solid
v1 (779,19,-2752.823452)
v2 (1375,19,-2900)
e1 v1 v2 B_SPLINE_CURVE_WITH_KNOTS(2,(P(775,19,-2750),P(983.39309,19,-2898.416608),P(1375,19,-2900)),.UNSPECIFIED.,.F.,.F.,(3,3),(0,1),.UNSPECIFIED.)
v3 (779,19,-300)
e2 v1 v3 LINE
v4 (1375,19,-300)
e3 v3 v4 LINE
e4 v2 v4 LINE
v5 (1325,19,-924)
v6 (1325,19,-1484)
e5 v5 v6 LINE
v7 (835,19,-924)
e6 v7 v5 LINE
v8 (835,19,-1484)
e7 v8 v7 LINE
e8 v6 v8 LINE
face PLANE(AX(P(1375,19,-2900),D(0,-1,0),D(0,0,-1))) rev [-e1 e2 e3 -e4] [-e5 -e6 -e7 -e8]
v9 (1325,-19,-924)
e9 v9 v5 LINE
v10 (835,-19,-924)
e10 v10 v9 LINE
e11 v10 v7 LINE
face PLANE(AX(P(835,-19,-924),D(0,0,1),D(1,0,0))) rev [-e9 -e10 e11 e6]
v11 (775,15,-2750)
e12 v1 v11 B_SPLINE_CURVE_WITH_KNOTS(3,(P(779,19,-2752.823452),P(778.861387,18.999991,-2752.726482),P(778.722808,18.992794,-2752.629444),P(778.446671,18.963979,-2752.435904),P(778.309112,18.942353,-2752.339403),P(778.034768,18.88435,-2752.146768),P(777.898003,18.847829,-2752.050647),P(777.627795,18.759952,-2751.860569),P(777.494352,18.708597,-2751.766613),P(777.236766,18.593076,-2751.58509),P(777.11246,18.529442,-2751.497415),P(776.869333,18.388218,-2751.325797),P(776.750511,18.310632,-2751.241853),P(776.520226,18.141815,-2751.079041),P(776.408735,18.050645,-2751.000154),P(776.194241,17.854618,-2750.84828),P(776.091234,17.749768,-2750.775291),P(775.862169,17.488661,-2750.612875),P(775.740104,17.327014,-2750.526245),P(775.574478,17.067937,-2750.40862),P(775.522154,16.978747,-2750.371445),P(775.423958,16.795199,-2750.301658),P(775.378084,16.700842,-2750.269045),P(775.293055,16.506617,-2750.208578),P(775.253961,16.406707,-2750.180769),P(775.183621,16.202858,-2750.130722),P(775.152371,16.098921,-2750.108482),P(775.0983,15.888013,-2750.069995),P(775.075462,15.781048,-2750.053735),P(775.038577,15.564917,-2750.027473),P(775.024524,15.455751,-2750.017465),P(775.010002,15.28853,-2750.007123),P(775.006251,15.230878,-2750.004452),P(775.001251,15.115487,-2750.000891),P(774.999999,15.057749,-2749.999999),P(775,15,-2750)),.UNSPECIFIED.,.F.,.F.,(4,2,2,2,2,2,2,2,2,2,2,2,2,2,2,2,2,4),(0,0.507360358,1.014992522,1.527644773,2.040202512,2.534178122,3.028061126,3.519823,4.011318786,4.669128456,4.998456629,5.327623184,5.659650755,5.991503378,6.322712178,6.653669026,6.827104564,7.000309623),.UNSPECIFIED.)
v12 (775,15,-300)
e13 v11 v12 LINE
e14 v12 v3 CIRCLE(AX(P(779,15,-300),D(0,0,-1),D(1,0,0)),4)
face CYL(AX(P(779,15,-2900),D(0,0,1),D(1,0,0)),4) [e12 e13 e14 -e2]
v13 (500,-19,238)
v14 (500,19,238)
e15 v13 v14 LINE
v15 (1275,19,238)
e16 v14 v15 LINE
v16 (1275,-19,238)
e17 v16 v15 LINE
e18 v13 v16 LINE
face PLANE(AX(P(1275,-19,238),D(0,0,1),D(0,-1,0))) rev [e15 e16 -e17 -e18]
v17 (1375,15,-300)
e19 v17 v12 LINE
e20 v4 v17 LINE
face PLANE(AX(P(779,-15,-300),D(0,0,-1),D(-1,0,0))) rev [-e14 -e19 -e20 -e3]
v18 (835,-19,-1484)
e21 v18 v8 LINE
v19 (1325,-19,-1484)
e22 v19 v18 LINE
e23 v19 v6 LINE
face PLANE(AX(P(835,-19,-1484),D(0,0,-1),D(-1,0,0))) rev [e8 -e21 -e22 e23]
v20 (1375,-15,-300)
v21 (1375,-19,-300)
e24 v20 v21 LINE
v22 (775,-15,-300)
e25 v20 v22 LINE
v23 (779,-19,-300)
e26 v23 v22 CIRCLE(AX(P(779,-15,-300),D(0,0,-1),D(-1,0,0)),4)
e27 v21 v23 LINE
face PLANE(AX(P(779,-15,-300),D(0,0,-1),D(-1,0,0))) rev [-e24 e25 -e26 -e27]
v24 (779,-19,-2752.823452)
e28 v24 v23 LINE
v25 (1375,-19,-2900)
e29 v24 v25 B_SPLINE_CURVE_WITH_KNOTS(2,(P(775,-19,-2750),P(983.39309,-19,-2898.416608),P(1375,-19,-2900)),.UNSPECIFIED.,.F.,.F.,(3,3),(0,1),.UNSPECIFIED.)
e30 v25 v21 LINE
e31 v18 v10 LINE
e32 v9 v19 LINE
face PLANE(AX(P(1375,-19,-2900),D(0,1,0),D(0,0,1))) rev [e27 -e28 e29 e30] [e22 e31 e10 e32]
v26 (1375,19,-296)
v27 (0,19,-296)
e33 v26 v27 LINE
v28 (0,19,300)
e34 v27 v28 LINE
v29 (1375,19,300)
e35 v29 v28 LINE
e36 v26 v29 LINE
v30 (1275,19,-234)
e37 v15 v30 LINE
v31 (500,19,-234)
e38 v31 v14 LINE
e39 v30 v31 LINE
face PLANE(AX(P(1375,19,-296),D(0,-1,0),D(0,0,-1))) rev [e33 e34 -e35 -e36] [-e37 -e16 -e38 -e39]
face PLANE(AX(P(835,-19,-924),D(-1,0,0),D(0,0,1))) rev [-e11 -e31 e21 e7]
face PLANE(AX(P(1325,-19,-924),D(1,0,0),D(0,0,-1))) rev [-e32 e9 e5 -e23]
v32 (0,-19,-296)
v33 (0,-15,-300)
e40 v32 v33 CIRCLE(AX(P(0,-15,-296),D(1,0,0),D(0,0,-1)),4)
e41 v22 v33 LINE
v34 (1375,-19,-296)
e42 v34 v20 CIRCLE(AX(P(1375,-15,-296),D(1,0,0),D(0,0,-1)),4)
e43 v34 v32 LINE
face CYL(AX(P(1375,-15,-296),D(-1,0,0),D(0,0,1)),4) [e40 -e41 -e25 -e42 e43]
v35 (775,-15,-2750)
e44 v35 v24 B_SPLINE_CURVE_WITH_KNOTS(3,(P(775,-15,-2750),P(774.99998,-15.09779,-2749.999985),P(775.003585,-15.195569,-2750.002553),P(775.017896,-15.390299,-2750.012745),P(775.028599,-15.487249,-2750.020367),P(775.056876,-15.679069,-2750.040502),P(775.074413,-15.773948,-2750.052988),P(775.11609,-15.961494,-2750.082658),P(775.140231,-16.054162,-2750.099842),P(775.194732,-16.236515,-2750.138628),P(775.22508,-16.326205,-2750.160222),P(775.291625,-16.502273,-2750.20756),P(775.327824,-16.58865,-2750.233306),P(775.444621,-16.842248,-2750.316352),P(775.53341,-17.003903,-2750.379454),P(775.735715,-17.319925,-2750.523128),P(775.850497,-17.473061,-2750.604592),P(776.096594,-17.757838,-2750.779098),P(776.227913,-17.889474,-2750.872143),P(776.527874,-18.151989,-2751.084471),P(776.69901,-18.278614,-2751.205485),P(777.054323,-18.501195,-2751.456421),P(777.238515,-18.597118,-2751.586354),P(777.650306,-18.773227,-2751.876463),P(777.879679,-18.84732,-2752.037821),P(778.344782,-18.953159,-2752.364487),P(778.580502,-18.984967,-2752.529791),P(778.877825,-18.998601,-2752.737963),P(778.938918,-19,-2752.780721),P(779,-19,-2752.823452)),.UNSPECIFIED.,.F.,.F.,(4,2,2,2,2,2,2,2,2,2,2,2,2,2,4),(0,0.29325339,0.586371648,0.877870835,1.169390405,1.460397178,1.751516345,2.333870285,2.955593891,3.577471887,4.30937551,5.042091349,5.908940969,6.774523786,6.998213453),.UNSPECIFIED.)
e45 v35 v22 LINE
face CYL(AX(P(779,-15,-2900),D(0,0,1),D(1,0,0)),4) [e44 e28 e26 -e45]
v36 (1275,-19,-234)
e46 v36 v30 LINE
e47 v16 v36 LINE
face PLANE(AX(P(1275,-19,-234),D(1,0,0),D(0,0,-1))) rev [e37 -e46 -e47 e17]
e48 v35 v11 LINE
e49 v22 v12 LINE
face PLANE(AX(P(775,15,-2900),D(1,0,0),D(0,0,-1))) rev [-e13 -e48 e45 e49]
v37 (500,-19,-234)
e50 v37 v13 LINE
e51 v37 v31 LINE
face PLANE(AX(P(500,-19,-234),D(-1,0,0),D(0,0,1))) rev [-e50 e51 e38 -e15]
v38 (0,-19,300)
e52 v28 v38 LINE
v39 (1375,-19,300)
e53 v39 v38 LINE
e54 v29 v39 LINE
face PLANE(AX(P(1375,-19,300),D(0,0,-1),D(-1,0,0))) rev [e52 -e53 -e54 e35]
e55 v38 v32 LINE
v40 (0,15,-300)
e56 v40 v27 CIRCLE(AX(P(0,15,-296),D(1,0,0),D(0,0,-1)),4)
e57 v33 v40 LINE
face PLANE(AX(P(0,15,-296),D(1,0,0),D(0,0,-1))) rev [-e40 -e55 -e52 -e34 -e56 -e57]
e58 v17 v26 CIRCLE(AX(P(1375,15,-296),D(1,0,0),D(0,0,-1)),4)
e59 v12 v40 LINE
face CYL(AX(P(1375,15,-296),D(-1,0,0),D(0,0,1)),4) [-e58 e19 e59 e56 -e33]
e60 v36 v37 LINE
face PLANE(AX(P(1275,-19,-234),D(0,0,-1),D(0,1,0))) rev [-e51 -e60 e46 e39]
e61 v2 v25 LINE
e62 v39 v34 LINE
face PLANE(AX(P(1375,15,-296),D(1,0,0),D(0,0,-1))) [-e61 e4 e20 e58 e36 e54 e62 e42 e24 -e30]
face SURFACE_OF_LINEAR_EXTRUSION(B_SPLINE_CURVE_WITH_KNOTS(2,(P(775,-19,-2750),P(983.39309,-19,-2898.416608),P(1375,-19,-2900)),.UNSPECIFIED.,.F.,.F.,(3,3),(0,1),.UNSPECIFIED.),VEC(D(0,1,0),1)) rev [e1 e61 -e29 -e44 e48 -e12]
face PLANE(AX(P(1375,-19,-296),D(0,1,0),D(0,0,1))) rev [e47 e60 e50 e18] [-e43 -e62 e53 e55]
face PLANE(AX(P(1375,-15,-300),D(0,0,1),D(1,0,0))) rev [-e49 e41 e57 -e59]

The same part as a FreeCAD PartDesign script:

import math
import FreeCAD as App
import Part
import Sketcher
Q = App.Units.Quantity


def add_polygon(sketch, points):
    """Adds a closed chain of lines whose ends are joined by coincident constraints."""
    first, n = sketch.GeometryCount, len(points)
    for a, b in zip(points, points[1:] + points[:1]):
        sketch.addGeometry(Part.LineSegment(App.Vector(*a, 0), App.Vector(*b, 0)), False)
    for i in range(n):
        sketch.addConstraint(Sketcher.Constraint("Coincident", first + i, 2, first + (i + 1) % n, 1))

doc = App.newDocument("Part")
body = doc.addObject("PartDesign::Body", "Body")

sketch1 = doc.addObject("Sketcher::SketchObject", "Sketch")
body.addObject(sketch1)
sketch1.AttachmentSupport = (doc.YZ_Plane, [""])
sketch1.MapMode = "FlatFace"
sketch1.addGeometry([
    Part.LineSegment(App.Vector(-19, 300, 0), App.Vector(-19, -296, 0)),
    Part.ArcOfCircle(Part.Circle(App.Vector(-15, -296, 0), App.Vector(0, 0, 1), 4), math.radians(180), math.radians(270)),
    Part.LineSegment(App.Vector(-15, -300, 0), App.Vector(15, -300, 0)),
    Part.ArcOfCircle(Part.Circle(App.Vector(15, -296, 0), App.Vector(0, 0, 1), 4), math.radians(-90), math.radians(0)),
    Part.LineSegment(App.Vector(19, -296, 0), App.Vector(19, 300, 0)),
    Part.LineSegment(App.Vector(19, 300, 0), App.Vector(-19, 300, 0)),
], False)
sketch1.addConstraint([
    Sketcher.Constraint("Tangent", 0, 2, 1, 1),
    Sketcher.Constraint("Tangent", 1, 2, 2, 1),
    Sketcher.Constraint("Tangent", 2, 2, 3, 1),
    Sketcher.Constraint("Tangent", 3, 2, 4, 1),
    Sketcher.Constraint("Coincident", 4, 2, 5, 1),
    Sketcher.Constraint("Coincident", 5, 2, 0, 1),
    Sketcher.Constraint("Vertical", 0),
    Sketcher.Constraint("Horizontal", 2),
    Sketcher.Constraint("Vertical", 4),
    Sketcher.Constraint("Horizontal", 5),
    Sketcher.Constraint("Equal", 1, 3),
    Sketcher.Constraint("Radius", 1, Q("4 mm")),
    Sketcher.Constraint("DistanceX", 2, 1, 2, 2, Q("30 mm")),
    Sketcher.Constraint("DistanceY", 0, 2, 0, 1, Q("596 mm")),
    Sketcher.Constraint("DistanceX", 1, 3, -1, 1, Q("15 mm")),
    Sketcher.Constraint("DistanceY", 1, 3, -1, 1, Q("296 mm")),
])
pad1 = doc.addObject("PartDesign::Pad", "Pad")
body.addObject(pad1)
pad1.Profile = sketch1
pad1.Length = 1375

sketch2 = doc.addObject("Sketcher::SketchObject", "Sketch001")
body.addObject(sketch2)
sketch2.AttachmentSupport = (doc.XY_Plane, [""])
sketch2.MapMode = "FlatFace"
sketch2.AttachmentOffset = App.Placement(App.Vector(0, 0, -300), App.Rotation())
sketch2.addGeometry([
    Part.LineSegment(App.Vector(779, 19, 0), App.Vector(1375, 19, 0)),
    Part.LineSegment(App.Vector(1375, 19, 0), App.Vector(1375, -19, 0)),
    Part.LineSegment(App.Vector(1375, -19, 0), App.Vector(779, -19, 0)),
    Part.ArcOfCircle(Part.Circle(App.Vector(779, -15, 0), App.Vector(0, 0, 1), 4), math.radians(180), math.radians(270)),
    Part.LineSegment(App.Vector(775, -15, 0), App.Vector(775, 15, 0)),
    Part.ArcOfCircle(Part.Circle(App.Vector(779, 15, 0), App.Vector(0, 0, 1), 4), math.radians(90), math.radians(180)),
], False)
sketch2.addConstraint([
    Sketcher.Constraint("Coincident", 0, 2, 1, 1),
    Sketcher.Constraint("Coincident", 1, 2, 2, 1),
    Sketcher.Constraint("Tangent", 2, 2, 3, 2),
    Sketcher.Constraint("Tangent", 3, 1, 4, 1),
    Sketcher.Constraint("Tangent", 4, 2, 5, 2),
    Sketcher.Constraint("Tangent", 5, 1, 0, 1),
    Sketcher.Constraint("Horizontal", 0),
    Sketcher.Constraint("Vertical", 1),
    Sketcher.Constraint("Horizontal", 2),
    Sketcher.Constraint("Vertical", 4),
    Sketcher.Constraint("Equal", 3, 5),
    Sketcher.Constraint("Radius", 3, Q("4 mm")),
    Sketcher.Constraint("DistanceX", 0, 1, 0, 2, Q("596 mm")),
    Sketcher.Constraint("DistanceY", 1, 2, 1, 1, Q("38 mm")),
    Sketcher.Constraint("DistanceX", -1, 1, 3, 3, Q("779 mm")),
    Sketcher.Constraint("DistanceY", 3, 3, -1, 1, Q("15 mm")),
])
pad2 = doc.addObject("PartDesign::Pad", "Pad001")
body.addObject(pad2)
pad2.Profile = sketch2
pad2.Length = 2600
pad2.Reversed = True

sketch3 = doc.addObject("Sketcher::SketchObject", "Sketch002")
body.addObject(sketch3)
sketch3.AttachmentSupport = (doc.XZ_Plane, [""])
sketch3.MapMode = "FlatFace"
sketch3.AttachmentOffset = App.Placement(App.Vector(0, 0, -19), App.Rotation())
add_polygon(sketch3, [(500, -234), (500, 238), (1275, 238), (1275, -234)])
sketch3.addConstraint([
    Sketcher.Constraint("Vertical", 0),
    Sketcher.Constraint("Horizontal", 1),
    Sketcher.Constraint("Vertical", 2),
    Sketcher.Constraint("Horizontal", 3),
    Sketcher.Constraint("DistanceX", 1, 1, 1, 2, Q("775 mm")),
    Sketcher.Constraint("DistanceY", 0, 1, 0, 2, Q("472 mm")),
    Sketcher.Constraint("DistanceX", -1, 1, 0, 2, Q("500 mm")),
    Sketcher.Constraint("DistanceY", -1, 1, 0, 2, Q("238 mm")),
])
pocket1 = doc.addObject("PartDesign::Pocket", "Pocket")
body.addObject(pocket1)
pocket1.Profile = sketch3
pocket1.Type = "ThroughAll"
pocket1.Reversed = True

sketch4 = doc.addObject("Sketcher::SketchObject", "Sketch003")
body.addObject(sketch4)
sketch4.AttachmentSupport = (doc.XZ_Plane, [""])
sketch4.MapMode = "FlatFace"
sketch4.AttachmentOffset = App.Placement(App.Vector(0, 0, -19), App.Rotation())
add_polygon(sketch4, [(835, -1484), (835, -924), (1325, -924), (1325, -1484)])
sketch4.addConstraint([
    Sketcher.Constraint("Vertical", 0),
    Sketcher.Constraint("Horizontal", 1),
    Sketcher.Constraint("Vertical", 2),
    Sketcher.Constraint("Horizontal", 3),
    Sketcher.Constraint("DistanceX", 1, 1, 1, 2, Q("490 mm")),
    Sketcher.Constraint("DistanceY", 0, 1, 0, 2, Q("560 mm")),
    Sketcher.Constraint("DistanceX", -1, 1, 0, 2, Q("835 mm")),
    Sketcher.Constraint("DistanceY", 0, 2, -1, 1, Q("924 mm")),
])
pocket2 = doc.addObject("PartDesign::Pocket", "Pocket001")
body.addObject(pocket2)
pocket2.Profile = sketch4
pocket2.Type = "ThroughAll"
pocket2.Reversed = True

sketch5 = doc.addObject("Sketcher::SketchObject", "Sketch004")
body.addObject(sketch5)
sketch5.AttachmentSupport = (doc.XZ_Plane, [""])
sketch5.MapMode = "FlatFace"
sketch5.AttachmentOffset = App.Placement(App.Vector(0, 0, -19), App.Rotation())
sketch5.addGeometry([
    Part.LineSegment(App.Vector(581.090205, -2808.629513, 0), App.Vector(775, -2750, 0)),
    Part.BSplineCurve([App.Vector(775, -2750, 0), App.Vector(983.39309, -2898.416608, 0), App.Vector(1375, -2900, 0)], [3, 3], [0, 1], False, 2, [1, 1, 1], False),
    Part.LineSegment(App.Vector(1375, -2900, 0), App.Vector(1325.322295, -3055.586561, 0)),
    Part.LineSegment(App.Vector(1325.322295, -3055.586561, 0), App.Vector(1128.037764, -3045.611501, 0)),
    Part.LineSegment(App.Vector(1128.037764, -3045.611501, 0), App.Vector(669.529135, -3022.42848, 0)),
    Part.LineSegment(App.Vector(669.529135, -3022.42848, 0), App.Vector(581.090205, -2808.629513, 0)),
], False)
sketch5.addConstraint([
    Sketcher.Constraint("Block", 1),
    Sketcher.Constraint("Coincident", 0, 2, 1, 1),
    Sketcher.Constraint("Coincident", 1, 2, 2, 1),
    Sketcher.Constraint("Coincident", 2, 2, 3, 1),
    Sketcher.Constraint("Coincident", 3, 2, 4, 1),
    Sketcher.Constraint("Coincident", 4, 2, 5, 1),
    Sketcher.Constraint("Coincident", 5, 2, 0, 1),
    Sketcher.Constraint("DistanceY", 3, 2, -1, 1, Q("3045.611501 mm")),
    Sketcher.Constraint("Distance", 2, Q("163.32499 mm")),
    Sketcher.Constraint("Distance", 5, Q("231.36863 mm")),
    Sketcher.Constraint("DistanceY", 2, 2, -1, 1, Q("3055.586561 mm")),
    Sketcher.Constraint("DistanceY", 4, 2, -1, 1, Q("3022.42848 mm")),
    Sketcher.Constraint("DistanceX", 3, 2, 2, 2, Q("197.28453 mm")),
    Sketcher.Constraint("DistanceX", 4, 2, 3, 2, Q("458.508629 mm")),
    Sketcher.Constraint("DistanceX", 5, 2, 4, 2, Q("88.43893 mm")),
])
pocket3 = doc.addObject("PartDesign::Pocket", "Pocket002")
body.addObject(pocket3)
pocket3.Profile = sketch5
pocket3.Length = 39
pocket3.Reversed = True

doc.recompute()
